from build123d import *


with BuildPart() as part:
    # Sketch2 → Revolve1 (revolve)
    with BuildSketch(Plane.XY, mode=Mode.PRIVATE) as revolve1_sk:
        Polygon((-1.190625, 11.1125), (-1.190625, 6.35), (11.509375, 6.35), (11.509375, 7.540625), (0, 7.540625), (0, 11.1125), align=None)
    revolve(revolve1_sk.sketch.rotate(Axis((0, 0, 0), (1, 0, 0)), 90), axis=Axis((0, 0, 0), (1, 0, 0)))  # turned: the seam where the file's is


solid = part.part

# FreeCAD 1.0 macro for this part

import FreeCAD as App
import Part
import Sketcher
Q = App.Units.Quantity


def add_polygon(sketch, points):
    """Adds a closed chain of lines whose ends are joined by coincident constraints."""
    first, n = sketch.GeometryCount, len(points)
    for a, b in zip(points, points[1:] + points[:1]):
        sketch.addGeometry(Part.LineSegment(App.Vector(*a, 0), App.Vector(*b, 0)), False)
    for i in range(n):
        sketch.addConstraint(Sketcher.Constraint("Coincident", first + i, 2, first + (i + 1) % n, 1))

doc = App.newDocument("Part")
body = doc.addObject("PartDesign::Body", "Body")

# Sketch on XY plane
sketch1 = body.newObject("Sketcher::SketchObject", "Sketch")
sketch1.AttachmentSupport = (doc.getObject("XY_Plane"), [""])
sketch1.MapMode = "FlatFace"
add_polygon(sketch1, [(-1.2, 11.1), (-1.2, 6.3), (11.5, 6.3), (11.5, 7.5), (0, 7.5), (0, 11.1)])  # lines 0-5
sketch1.addConstraint([
    Sketcher.Constraint("Vertical", 0),
    Sketcher.Constraint("Horizontal", 1),
    Sketcher.Constraint("Vertical", 2),
    Sketcher.Constraint("Horizontal", 3),
    Sketcher.Constraint("Vertical", 4),
    Sketcher.Constraint("Horizontal", 5),
    Sketcher.Constraint("PointOnObject", 3, 2, -2),
    Sketcher.Constraint("Equal", 5, 2),
    Sketcher.Constraint("DistanceX", 1, 1, 1, 2, Q("0.5 in")),
    Sketcher.Constraint("DistanceX", 3, 2, 3, 1, Q("0.453125 in")),
    Sketcher.Constraint("DistanceY", 0, 2, 0, 1, Q("0.1875 in")),
    Sketcher.Constraint("DistanceY", -1, 1, 0, 2, Q("0.25 in")),
])
revolution = body.newObject("PartDesign::Revolution", "Revolution")
revolution.Profile = sketch1
revolution.ReferenceAxis = (sketch1, ["H_Axis"])
revolution.Angle = 360

doc.recompute()
